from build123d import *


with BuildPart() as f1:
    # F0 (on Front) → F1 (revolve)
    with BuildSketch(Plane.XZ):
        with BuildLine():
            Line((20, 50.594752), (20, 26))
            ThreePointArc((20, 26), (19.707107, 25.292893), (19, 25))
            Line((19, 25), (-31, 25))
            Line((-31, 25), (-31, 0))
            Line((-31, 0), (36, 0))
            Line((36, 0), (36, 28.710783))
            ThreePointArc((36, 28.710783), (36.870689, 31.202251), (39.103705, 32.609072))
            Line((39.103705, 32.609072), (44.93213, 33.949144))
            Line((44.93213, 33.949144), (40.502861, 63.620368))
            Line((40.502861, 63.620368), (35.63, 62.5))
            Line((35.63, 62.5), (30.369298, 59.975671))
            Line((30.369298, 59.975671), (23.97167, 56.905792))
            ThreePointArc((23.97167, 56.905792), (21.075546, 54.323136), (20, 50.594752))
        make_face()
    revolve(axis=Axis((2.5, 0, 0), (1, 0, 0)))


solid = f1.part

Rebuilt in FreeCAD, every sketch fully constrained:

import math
import FreeCAD as App
import Part
import Sketcher

V = App.Vector

doc = App.newDocument("Part")
body = doc.addObject("PartDesign::Body", "Body")

# Sketch on XZ plane
sketch1 = body.newObject("Sketcher::SketchObject", "Sketch")
sketch1.AttachmentSupport = (doc.getObject("XZ_Plane"), [""])
sketch1.MapMode = "FlatFace"
sketch1.addGeometry([
    Part.LineSegment(V(20, 50.6, 0), V(20, 26, 0)),  # 0
    Part.ArcOfCircle(Part.Circle(V(19, 26, 0), V(0, 0, 1), 1), math.radians(-90), math.radians(0)),  # 1
    Part.LineSegment(V(19, 25, 0), V(-31, 25, 0)),  # 2
    Part.LineSegment(V(-31, 25, 0), V(-31, 0, 0)),  # 3
    Part.LineSegment(V(-31, 0, 0), V(36, 0, 0)),  # 4
    Part.LineSegment(V(36, 0, 0), V(36, 28.7, 0)),  # 5
    Part.ArcOfCircle(Part.Circle(V(40, 28.7, 0), V(0, 0, 1), 4), math.radians(103), math.radians(180)),  # 6
    Part.LineSegment(V(39.1, 32.6, 0), V(44.9, 33.9, 0)),  # 7
    Part.LineSegment(V(44.9, 33.9, 0), V(40.5, 63.6, 0)),  # 8
    Part.LineSegment(V(40.5, 63.6, 0), V(35.6, 62.5, 0)),  # 9
    Part.LineSegment(V(35.6, 62.5, 0), V(30.4, 60, 0)),  # 10
    Part.LineSegment(V(30.4, 60, 0), V(24, 56.9, 0)),  # 11
    Part.ArcOfCircle(Part.Circle(V(27, 50.6, 0), V(0, 0, 1), 7), math.radians(116), math.radians(180)),  # 12
], False)
sketch1.addConstraint([
    Sketcher.Constraint("Tangent", 0, 2, 1, 2),
    Sketcher.Constraint("Tangent", 1, 1, 2, 1),
    Sketcher.Constraint("Coincident", 2, 2, 3, 1),
    Sketcher.Constraint("Coincident", 3, 2, 4, 1),
    Sketcher.Constraint("Coincident", 4, 2, 5, 1),
    Sketcher.Constraint("Tangent", 5, 2, 6, 2),
    Sketcher.Constraint("Tangent", 6, 1, 7, 1),
    Sketcher.Constraint("Coincident", 7, 2, 8, 1),
    Sketcher.Constraint("Coincident", 8, 2, 9, 1),
    Sketcher.Constraint("Coincident", 9, 2, 10, 1),
    Sketcher.Constraint("Coincident", 10, 2, 11, 1),
    Sketcher.Constraint("Tangent", 11, 2, 12, 1),
    Sketcher.Constraint("Tangent", 12, 2, 0, 1),
    Sketcher.Constraint("Vertical", 0),
    Sketcher.Constraint("Horizontal", 2),
    Sketcher.Constraint("Vertical", 3),
    Sketcher.Constraint("Horizontal", 4),
    Sketcher.Constraint("Vertical", 5),
    Sketcher.Constraint("PointOnObject", 3, 2, -1),
    Sketcher.Constraint("Parallel", 7, 9),
    Sketcher.Constraint("Parallel", 10, 11),
    Sketcher.Constraint("Radius", 1, 0.999999),
    Sketcher.Constraint("Radius", 6, 4.0),
    Sketcher.Constraint("Radius", 12, 7.000001),
    Sketcher.Constraint("DistanceX", 2, 2, 2, 1, 50.0),
    Sketcher.Constraint("DistanceX", 4, 1, 4, 2, 67.0),
    Sketcher.Constraint("DistanceY", 3, 2, 3, 1, 25.0),
    Sketcher.Constraint("Distance", 8, 29.999999),
    Sketcher.Constraint("Distance", 9, 5.0),
    Sketcher.Constraint("DistanceX", -1, 1, 1, 3, 19.000001),
    Sketcher.Constraint("DistanceY", -1, 1, 9, 2, 62.5),
    Sketcher.Constraint("DistanceX", -1, 1, 9, 2, 35.63),
    Sketcher.Constraint("Distance", 10, 5.835),
    Sketcher.Constraint("DistanceY", 0, 2, 0, 1, 24.594752),
    Sketcher.Constraint("DistanceY", 6, 1, 10, 2, 27.366599),
    Sketcher.Constraint("DistanceY", 5, 1, 5, 2, 28.710783),
])
revolution = body.newObject("PartDesign::Revolution", "Revolution")
revolution.Profile = sketch1
revolution.ReferenceAxis = (sketch1, ["H_Axis"])
revolution.Angle = 360

doc.recompute()
